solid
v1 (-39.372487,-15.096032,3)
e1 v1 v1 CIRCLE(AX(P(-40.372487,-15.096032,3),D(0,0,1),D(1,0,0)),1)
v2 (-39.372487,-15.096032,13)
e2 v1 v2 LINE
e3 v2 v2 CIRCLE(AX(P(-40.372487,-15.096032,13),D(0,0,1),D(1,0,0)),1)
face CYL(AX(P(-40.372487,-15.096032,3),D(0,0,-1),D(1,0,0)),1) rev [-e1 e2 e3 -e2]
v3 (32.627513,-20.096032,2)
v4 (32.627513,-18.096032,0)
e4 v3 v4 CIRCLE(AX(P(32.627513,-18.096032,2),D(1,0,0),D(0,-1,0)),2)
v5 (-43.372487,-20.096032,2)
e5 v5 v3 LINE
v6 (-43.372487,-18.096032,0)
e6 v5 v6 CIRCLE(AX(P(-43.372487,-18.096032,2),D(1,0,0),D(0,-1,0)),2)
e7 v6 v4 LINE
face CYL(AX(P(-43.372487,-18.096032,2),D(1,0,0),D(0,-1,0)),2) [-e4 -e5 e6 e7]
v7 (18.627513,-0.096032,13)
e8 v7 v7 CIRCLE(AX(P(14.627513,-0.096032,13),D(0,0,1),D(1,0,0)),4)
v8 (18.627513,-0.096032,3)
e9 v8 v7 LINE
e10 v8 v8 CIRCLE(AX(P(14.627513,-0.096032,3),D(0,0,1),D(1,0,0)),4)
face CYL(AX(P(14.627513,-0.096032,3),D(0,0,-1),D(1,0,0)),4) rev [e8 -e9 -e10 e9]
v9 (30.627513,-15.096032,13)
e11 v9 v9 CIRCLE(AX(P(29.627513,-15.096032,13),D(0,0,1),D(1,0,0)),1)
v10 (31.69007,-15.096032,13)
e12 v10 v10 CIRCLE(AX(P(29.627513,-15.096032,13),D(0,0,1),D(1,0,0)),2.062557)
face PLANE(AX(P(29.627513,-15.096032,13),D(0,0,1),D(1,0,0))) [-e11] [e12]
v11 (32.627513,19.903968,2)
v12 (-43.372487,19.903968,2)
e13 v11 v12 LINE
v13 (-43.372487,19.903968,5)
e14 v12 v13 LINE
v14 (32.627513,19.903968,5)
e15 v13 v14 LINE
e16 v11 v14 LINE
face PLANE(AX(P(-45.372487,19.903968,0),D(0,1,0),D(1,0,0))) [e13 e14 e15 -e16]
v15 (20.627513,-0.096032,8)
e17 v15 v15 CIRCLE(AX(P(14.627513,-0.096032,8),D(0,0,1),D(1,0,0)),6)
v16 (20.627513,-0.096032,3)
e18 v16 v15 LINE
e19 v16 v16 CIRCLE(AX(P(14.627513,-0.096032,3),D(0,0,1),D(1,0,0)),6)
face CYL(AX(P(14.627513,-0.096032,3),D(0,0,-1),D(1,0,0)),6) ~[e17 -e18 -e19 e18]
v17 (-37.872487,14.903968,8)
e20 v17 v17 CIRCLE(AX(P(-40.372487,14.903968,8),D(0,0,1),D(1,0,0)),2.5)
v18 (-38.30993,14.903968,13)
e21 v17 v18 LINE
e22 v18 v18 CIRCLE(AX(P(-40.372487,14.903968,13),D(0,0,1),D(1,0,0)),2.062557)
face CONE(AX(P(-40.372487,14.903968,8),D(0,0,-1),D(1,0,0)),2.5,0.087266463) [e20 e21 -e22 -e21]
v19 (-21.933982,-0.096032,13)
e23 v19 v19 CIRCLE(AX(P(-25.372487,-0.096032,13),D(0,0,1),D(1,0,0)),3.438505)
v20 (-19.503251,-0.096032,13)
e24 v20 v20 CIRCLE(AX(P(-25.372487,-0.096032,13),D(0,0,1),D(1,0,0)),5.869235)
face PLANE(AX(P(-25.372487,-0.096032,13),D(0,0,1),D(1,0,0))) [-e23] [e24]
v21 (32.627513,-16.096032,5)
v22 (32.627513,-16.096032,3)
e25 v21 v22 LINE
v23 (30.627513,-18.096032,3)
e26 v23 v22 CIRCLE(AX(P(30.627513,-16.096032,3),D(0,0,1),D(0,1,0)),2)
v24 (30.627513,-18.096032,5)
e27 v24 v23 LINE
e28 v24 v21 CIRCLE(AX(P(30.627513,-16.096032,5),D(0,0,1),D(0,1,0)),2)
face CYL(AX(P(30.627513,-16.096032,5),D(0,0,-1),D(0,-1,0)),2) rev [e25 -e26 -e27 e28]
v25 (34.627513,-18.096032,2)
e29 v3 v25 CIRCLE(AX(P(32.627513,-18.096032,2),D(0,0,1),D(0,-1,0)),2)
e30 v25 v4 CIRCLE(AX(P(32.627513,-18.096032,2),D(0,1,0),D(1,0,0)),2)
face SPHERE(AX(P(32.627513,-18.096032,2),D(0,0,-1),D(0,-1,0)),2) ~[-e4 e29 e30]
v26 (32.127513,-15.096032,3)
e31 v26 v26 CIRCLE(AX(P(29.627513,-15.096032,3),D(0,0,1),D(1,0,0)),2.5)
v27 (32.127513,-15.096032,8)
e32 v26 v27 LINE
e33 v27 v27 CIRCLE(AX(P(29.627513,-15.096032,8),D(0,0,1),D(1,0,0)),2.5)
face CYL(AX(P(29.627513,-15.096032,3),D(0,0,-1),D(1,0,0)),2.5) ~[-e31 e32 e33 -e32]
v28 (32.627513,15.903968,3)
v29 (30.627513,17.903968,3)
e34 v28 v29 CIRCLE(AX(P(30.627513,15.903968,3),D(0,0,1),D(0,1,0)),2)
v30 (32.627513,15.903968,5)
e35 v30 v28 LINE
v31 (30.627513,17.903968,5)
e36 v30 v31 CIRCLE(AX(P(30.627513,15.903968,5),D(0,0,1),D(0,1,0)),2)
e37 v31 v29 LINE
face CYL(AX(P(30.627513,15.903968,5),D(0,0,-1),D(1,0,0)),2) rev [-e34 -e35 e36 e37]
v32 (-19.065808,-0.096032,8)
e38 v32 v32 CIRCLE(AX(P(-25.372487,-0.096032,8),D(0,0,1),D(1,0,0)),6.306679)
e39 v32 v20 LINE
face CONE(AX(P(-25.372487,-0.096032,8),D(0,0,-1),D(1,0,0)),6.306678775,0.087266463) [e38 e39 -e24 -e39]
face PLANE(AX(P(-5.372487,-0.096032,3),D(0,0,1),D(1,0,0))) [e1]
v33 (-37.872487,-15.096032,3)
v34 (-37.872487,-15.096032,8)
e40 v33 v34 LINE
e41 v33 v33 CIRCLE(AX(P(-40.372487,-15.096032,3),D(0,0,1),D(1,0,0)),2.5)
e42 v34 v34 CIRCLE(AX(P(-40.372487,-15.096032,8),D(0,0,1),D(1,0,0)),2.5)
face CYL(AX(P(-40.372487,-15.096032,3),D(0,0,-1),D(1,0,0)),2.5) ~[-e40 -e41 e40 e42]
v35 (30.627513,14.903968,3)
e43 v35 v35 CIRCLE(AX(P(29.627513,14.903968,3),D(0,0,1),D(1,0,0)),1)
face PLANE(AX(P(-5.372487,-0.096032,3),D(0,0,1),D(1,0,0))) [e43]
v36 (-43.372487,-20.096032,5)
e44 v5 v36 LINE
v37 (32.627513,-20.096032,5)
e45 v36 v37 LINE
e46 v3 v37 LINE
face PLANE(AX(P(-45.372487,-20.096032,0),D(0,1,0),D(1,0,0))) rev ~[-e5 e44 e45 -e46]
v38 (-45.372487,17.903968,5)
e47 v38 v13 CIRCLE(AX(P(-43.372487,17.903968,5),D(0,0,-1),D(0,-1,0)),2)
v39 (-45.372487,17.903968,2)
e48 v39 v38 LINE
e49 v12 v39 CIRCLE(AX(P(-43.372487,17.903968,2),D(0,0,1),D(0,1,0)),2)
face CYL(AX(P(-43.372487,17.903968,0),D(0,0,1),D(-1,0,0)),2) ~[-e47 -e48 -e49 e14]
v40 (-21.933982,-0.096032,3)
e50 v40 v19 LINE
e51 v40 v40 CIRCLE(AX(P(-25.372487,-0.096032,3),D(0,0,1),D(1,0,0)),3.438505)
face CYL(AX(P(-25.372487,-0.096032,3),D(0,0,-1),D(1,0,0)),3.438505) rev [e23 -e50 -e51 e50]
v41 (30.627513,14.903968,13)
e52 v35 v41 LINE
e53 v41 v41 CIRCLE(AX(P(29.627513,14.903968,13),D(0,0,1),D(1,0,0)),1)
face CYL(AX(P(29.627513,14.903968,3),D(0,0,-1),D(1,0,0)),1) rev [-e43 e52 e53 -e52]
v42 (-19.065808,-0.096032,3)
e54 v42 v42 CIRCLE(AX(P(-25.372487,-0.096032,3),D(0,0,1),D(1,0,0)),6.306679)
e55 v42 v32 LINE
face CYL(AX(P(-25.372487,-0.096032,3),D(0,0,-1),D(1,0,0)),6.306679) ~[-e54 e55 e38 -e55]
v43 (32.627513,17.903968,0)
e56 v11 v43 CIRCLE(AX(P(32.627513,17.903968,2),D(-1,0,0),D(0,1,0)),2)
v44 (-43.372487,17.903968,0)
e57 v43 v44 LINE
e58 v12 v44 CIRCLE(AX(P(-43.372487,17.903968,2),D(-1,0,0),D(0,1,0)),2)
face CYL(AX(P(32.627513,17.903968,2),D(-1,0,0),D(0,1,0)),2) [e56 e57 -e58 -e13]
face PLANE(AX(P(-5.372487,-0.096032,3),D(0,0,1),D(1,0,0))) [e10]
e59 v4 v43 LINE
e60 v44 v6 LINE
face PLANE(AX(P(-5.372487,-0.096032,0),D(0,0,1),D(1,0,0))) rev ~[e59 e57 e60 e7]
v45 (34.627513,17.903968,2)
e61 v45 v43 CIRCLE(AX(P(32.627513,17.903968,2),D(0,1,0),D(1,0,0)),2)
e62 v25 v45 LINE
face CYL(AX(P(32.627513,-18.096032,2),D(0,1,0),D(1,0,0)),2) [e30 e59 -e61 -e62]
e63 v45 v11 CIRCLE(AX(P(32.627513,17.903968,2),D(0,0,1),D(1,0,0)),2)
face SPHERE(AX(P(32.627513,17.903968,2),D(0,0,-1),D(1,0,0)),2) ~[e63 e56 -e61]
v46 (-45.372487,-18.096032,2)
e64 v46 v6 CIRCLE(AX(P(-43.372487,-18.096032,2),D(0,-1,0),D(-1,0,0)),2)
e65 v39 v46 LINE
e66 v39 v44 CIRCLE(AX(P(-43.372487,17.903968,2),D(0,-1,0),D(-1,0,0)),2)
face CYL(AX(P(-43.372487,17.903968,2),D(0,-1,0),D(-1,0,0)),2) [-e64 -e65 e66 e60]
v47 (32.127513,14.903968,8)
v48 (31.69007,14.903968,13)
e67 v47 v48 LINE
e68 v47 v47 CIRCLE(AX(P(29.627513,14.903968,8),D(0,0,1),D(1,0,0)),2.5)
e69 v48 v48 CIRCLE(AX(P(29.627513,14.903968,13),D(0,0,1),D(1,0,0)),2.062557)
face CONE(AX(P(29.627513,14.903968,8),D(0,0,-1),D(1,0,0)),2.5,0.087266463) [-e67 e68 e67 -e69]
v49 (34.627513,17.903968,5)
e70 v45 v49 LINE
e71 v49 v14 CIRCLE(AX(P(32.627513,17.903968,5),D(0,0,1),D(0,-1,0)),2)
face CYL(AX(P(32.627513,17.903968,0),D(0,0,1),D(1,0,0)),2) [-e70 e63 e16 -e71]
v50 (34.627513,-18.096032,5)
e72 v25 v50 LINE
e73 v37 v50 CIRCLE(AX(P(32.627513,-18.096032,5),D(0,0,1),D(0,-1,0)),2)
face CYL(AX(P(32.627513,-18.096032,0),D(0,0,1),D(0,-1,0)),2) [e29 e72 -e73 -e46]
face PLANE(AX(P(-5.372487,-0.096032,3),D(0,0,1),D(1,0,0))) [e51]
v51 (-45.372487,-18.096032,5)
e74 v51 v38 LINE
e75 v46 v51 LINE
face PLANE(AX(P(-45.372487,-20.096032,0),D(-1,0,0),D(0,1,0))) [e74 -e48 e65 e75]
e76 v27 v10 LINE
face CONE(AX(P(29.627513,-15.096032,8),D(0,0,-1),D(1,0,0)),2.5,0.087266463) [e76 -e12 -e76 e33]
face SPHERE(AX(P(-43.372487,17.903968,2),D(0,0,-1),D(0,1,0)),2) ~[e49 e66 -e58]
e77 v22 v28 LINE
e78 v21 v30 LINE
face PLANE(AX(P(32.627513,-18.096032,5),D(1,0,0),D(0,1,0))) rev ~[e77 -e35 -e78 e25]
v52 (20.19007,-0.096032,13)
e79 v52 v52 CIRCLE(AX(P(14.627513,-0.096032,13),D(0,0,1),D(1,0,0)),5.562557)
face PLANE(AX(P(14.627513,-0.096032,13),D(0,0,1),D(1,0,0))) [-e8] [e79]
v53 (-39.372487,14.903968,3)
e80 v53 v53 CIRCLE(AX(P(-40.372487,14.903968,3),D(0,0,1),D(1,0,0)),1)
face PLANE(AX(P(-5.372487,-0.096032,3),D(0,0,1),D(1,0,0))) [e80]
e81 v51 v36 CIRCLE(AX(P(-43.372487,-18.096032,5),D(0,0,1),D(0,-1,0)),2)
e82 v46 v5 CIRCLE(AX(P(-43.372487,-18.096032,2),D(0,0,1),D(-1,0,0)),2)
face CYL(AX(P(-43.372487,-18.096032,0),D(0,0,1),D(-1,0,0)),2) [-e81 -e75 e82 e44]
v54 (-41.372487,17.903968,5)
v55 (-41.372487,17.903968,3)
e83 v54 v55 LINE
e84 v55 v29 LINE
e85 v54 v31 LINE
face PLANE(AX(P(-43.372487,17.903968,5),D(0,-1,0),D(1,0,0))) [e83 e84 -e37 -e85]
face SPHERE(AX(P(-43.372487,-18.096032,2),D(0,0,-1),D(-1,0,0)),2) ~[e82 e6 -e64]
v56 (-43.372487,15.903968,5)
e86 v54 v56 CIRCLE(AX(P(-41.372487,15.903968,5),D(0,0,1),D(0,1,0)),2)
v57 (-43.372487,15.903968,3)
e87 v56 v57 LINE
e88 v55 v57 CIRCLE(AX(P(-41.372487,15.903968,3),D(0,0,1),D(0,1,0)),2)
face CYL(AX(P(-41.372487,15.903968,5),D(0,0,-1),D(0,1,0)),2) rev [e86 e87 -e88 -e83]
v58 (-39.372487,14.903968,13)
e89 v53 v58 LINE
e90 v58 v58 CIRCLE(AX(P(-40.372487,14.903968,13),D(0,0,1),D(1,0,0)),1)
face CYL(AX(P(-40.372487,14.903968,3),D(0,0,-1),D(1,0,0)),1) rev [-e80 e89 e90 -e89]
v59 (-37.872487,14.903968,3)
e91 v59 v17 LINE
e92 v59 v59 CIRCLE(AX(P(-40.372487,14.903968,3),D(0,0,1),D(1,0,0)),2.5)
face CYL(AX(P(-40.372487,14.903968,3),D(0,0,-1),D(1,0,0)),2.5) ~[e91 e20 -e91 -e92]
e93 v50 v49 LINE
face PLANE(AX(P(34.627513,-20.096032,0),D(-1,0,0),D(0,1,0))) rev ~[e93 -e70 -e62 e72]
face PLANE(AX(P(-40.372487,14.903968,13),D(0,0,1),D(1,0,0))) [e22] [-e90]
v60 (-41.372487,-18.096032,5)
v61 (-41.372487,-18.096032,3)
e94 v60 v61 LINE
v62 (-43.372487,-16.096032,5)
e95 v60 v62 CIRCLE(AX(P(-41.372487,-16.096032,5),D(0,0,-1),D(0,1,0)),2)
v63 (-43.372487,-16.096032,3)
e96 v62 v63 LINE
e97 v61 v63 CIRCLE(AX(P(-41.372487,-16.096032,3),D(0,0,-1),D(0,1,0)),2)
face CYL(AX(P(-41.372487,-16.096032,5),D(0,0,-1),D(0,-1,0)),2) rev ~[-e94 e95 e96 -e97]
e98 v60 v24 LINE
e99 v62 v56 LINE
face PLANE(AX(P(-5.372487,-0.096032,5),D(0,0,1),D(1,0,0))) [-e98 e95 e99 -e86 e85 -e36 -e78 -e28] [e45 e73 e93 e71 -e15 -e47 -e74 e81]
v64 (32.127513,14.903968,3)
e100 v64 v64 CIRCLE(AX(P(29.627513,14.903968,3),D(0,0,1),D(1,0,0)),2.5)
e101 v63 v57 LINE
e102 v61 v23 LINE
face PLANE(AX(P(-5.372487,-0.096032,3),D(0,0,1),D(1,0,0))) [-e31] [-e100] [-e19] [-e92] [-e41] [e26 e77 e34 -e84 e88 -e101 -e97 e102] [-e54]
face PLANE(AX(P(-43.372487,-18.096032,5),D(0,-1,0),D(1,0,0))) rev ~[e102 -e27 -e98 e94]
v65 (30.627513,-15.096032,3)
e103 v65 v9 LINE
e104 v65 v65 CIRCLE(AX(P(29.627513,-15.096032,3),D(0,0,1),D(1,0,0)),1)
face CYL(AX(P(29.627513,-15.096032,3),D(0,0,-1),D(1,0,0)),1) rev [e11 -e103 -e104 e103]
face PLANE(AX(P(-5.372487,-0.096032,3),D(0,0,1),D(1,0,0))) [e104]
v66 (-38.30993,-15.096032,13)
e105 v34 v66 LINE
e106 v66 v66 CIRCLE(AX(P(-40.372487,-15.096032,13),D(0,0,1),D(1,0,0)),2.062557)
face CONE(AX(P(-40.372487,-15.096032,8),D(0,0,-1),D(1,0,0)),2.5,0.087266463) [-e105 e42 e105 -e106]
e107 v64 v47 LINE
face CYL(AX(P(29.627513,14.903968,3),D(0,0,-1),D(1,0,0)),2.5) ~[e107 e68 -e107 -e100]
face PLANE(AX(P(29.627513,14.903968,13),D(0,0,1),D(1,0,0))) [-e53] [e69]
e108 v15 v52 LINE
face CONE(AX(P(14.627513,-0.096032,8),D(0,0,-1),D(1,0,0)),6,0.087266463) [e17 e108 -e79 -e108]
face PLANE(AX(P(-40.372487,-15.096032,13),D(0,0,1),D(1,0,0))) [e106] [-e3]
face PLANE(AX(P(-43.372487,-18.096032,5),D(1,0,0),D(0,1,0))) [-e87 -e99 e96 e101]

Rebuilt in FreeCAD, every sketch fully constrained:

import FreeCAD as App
import Part
import Sketcher


def edges_at(feature, points):
    """Names of the edges that pass closest to the given points."""
    edges = feature.Shape.Edges
    near = lambda p: min(range(len(edges)), key=lambda i: edges[i].distToShape(Part.Vertex(*p))[0])
    return sorted({f"Edge{near(p) + 1}" for p in points})

doc = App.newDocument("Part")
body = doc.addObject("PartDesign::Body", "Body")

# Sketch on XY plane
sketch1 = body.newObject("Sketcher::SketchObject", "Sketch")
sketch1.AttachmentSupport = (doc.getObject("XY_Plane"), [""])
sketch1.MapMode = "FlatFace"
sketch1.addGeometry(Part.LineSegment(App.Vector(-45, 20, 0), App.Vector(-45, -20, 0)), False)
sketch1.addGeometry(Part.LineSegment(App.Vector(-45, -20, 0), App.Vector(35, -20, 0)), False)
sketch1.addGeometry(Part.LineSegment(App.Vector(35, -20, 0), App.Vector(35, 20, 0)), False)
sketch1.addGeometry(Part.LineSegment(App.Vector(35, 20, 0), App.Vector(-45, 20, 0)), False)
sketch1.addConstraint(Sketcher.Constraint("Coincident", 0, 2, 1, 1))
sketch1.addConstraint(Sketcher.Constraint("Coincident", 1, 2, 2, 1))
sketch1.addConstraint(Sketcher.Constraint("Coincident", 2, 2, 3, 1))
sketch1.addConstraint(Sketcher.Constraint("Coincident", 3, 2, 0, 1))
sketch1.addConstraint(Sketcher.Constraint("Vertical", 0))
sketch1.addConstraint(Sketcher.Constraint("Horizontal", 1))
sketch1.addConstraint(Sketcher.Constraint("Vertical", 2))
sketch1.addConstraint(Sketcher.Constraint("Horizontal", 3))
sketch1.addConstraint(Sketcher.Constraint("DistanceX", 1, 1, 1, 2, 80.0))
sketch1.addConstraint(Sketcher.Constraint("DistanceY", 0, 2, 0, 1, 40.0))
sketch1.addConstraint(Sketcher.Constraint("DistanceY", 0, 2, -1, 1, 20.096032))
sketch1.addConstraint(Sketcher.Constraint("DistanceX", 0, 2, -1, 1, 45.372487))
pad1 = body.newObject("PartDesign::Pad", "Pad")
pad1.Profile = sketch1
pad1.Length = 5
doc.recompute()

fillet = body.newObject("PartDesign::Fillet", "Fillet")
fillet.Base = (pad1, edges_at(pad1, [
    (-45.372, 19.904, 2.5),
    (34.628, 19.904, 2.5),
    (34.628, -20.096, 2.5),
    (-45.372, -20.096, 2.5),
]))
fillet.Radius = 2

# Sketch on XY plane
sketch2 = body.newObject("Sketcher::SketchObject", "Sketch001")
sketch2.AttachmentSupport = (doc.getObject("XY_Plane"), [""])
sketch2.MapMode = "FlatFace"
sketch2.AttachmentOffset = App.Placement(App.Vector(0, 0, 5), App.Rotation())
sketch2.addGeometry(Part.LineSegment(App.Vector(-43, 18, 0), App.Vector(-43, -18, 0)), False)
sketch2.addGeometry(Part.LineSegment(App.Vector(-43, -18, 0), App.Vector(33, -18, 0)), False)
sketch2.addGeometry(Part.LineSegment(App.Vector(33, -18, 0), App.Vector(33, 18, 0)), False)
sketch2.addGeometry(Part.LineSegment(App.Vector(33, 18, 0), App.Vector(-43, 18, 0)), False)
sketch2.addConstraint(Sketcher.Constraint("Coincident", 0, 2, 1, 1))
sketch2.addConstraint(Sketcher.Constraint("Coincident", 1, 2, 2, 1))
sketch2.addConstraint(Sketcher.Constraint("Coincident", 2, 2, 3, 1))
sketch2.addConstraint(Sketcher.Constraint("Coincident", 3, 2, 0, 1))
sketch2.addConstraint(Sketcher.Constraint("Vertical", 0))
sketch2.addConstraint(Sketcher.Constraint("Horizontal", 1))
sketch2.addConstraint(Sketcher.Constraint("Vertical", 2))
sketch2.addConstraint(Sketcher.Constraint("Horizontal", 3))
sketch2.addConstraint(Sketcher.Constraint("DistanceX", 1, 1, 1, 2, 76.0))
sketch2.addConstraint(Sketcher.Constraint("DistanceY", 0, 2, 0, 1, 36.0))
sketch2.addConstraint(Sketcher.Constraint("DistanceY", 0, 2, -1, 1, 18.096032))
sketch2.addConstraint(Sketcher.Constraint("DistanceX", 0, 2, -1, 1, 43.372487))
pocket1 = body.newObject("PartDesign::Pocket", "Pocket")
pocket1.Profile = sketch2
pocket1.Length = 2
doc.recompute()

fillet2 = body.newObject("PartDesign::Fillet", "Fillet001")
fillet2.Base = (pocket1, edges_at(pocket1, [
    (-43.372, -18.096, 4),
    (-43.372, 17.904, 4),
    (32.628, 17.904, 4),
    (32.628, -18.096, 4),
]))
fillet2.Radius = 2
doc.recompute()

fillet3 = body.newObject("PartDesign::Fillet", "Fillet002")
fillet3.Base = (fillet2, edges_at(fillet2, [
    (-5.372, -20.096, 0),
    (-45.372, -0.096, 0),
    (-5.372, 19.904, 0),
    (34.628, -0.096, 0),
    (-44.787, 19.318, 0),
    (34.042, 19.318, 0),
    (34.042, -19.51, 0),
    (-44.787, -19.51, 0),
]))
fillet3.Radius = 2

# Sketch on XY plane
sketch3 = body.newObject("Sketcher::SketchObject", "Sketch002")
sketch3.AttachmentSupport = (doc.getObject("XY_Plane"), [""])
sketch3.MapMode = "FlatFace"
sketch3.AttachmentOffset = App.Placement(App.Vector(0, 0, 3), App.Rotation())
sketch3.addGeometry(Part.Circle(App.Vector(-40.4, 14.9, 0), App.Vector(0, 0, 1), 2.5), False)
sketch3.addGeometry(Part.Circle(App.Vector(-40.4, 14.9, 0), App.Vector(0, 0, 1), 1), False)
sketch3.addGeometry(Part.Circle(App.Vector(29.6, 14.9, 0), App.Vector(0, 0, 1), 2.5), False)
sketch3.addGeometry(Part.Circle(App.Vector(29.6, 14.9, 0), App.Vector(0, 0, 1), 1), False)
sketch3.addGeometry(Part.Circle(App.Vector(29.6, -15.1, 0), App.Vector(0, 0, 1), 2.5), False)
sketch3.addGeometry(Part.Circle(App.Vector(29.6, -15.1, 0), App.Vector(0, 0, 1), 1), False)
sketch3.addGeometry(Part.Circle(App.Vector(-40.4, -15.1, 0), App.Vector(0, 0, 1), 2.5), False)
sketch3.addGeometry(Part.Circle(App.Vector(-40.4, -15.1, 0), App.Vector(0, 0, 1), 1), False)
sketch3.addGeometry(Part.Circle(App.Vector(14.6, -0.1, 0), App.Vector(0, 0, 1), 6), False)
sketch3.addGeometry(Part.Circle(App.Vector(14.6, -0.1, 0), App.Vector(0, 0, 1), 4), False)
sketch3.addConstraint(Sketcher.Constraint("Coincident", 1, 3, 0, 3))
sketch3.addConstraint(Sketcher.Constraint("Coincident", 3, 3, 2, 3))
sketch3.addConstraint(Sketcher.Constraint("Coincident", 5, 3, 4, 3))
sketch3.addConstraint(Sketcher.Constraint("Coincident", 7, 3, 6, 3))
sketch3.addConstraint(Sketcher.Constraint("Coincident", 9, 3, 8, 3))
sketch3.addConstraint(Sketcher.Constraint("Equal", 0, 2))
sketch3.addConstraint(Sketcher.Constraint("Equal", 1, 3))
sketch3.addConstraint(Sketcher.Constraint("Equal", 2, 4))
sketch3.addConstraint(Sketcher.Constraint("Equal", 3, 5))
sketch3.addConstraint(Sketcher.Constraint("Equal", 4, 6))
sketch3.addConstraint(Sketcher.Constraint("Equal", 5, 7))
sketch3.addConstraint(Sketcher.Constraint("Horizontal", 1, 3, 2, 3))
sketch3.addConstraint(Sketcher.Constraint("Horizontal", 5, 3, 6, 3))
sketch3.addConstraint(Sketcher.Constraint("Vertical", 3, 3, 4, 3))
sketch3.addConstraint(Sketcher.Constraint("Vertical", 1, 3, 6, 3))
sketch3.addConstraint(Sketcher.Constraint("Diameter", 0, 5.0))
sketch3.addConstraint(Sketcher.Constraint("Diameter", 1, 2.0))
sketch3.addConstraint(Sketcher.Constraint("Diameter", 8, 12.0))
sketch3.addConstraint(Sketcher.Constraint("Diameter", 9, 8.0))
sketch3.addConstraint(Sketcher.Constraint("DistanceX", 0, 3, 2, 3, 70.0))
sketch3.addConstraint(Sketcher.Constraint("DistanceY", 4, 3, 2, 3, 30.0))
sketch3.addConstraint(Sketcher.Constraint("DistanceX", 8, 3, 2, 3, 15.0))
sketch3.addConstraint(Sketcher.Constraint("DistanceY", 8, 3, 2, 3, 15.0))
sketch3.addConstraint(Sketcher.Constraint("DistanceY", -1, 1, 0, 3, 14.903968))
sketch3.addConstraint(Sketcher.Constraint("DistanceX", 0, 3, -1, 1, 40.372487))
pad2 = body.newObject("PartDesign::Pad", "Pad001")
pad2.Profile = sketch3
pad2.Length = 10
doc.recompute()

chamfer = body.newObject("PartDesign::Chamfer", "Chamfer")
chamfer.Base = (pad2, edges_at(pad2, [(8.628, -0.096, 13)]))
chamfer.ChamferType = "Two distances"
chamfer.Size = 5
chamfer.Size2 = 0.437443

# Sketch on XY plane
sketch4 = body.newObject("Sketcher::SketchObject", "Sketch003")
sketch4.AttachmentSupport = (doc.getObject("XY_Plane"), [""])
sketch4.MapMode = "FlatFace"
sketch4.AttachmentOffset = App.Placement(App.Vector(0, 0, 3), App.Rotation())
sketch4.addGeometry(Part.Circle(App.Vector(-25.4, -0.1, 0), App.Vector(0, 0, 1), 6.3), False)
sketch4.addGeometry(Part.Circle(App.Vector(-25.4, -0.1, 0), App.Vector(0, 0, 1), 3.4), False)
sketch4.addConstraint(Sketcher.Constraint("Coincident", 1, 3, 0, 3))
sketch4.addConstraint(Sketcher.Constraint("Diameter", 1, 6.87701))
sketch4.addConstraint(Sketcher.Constraint("Diameter", 0, 12.613358))
sketch4.addConstraint(Sketcher.Constraint("DistanceY", 0, 3, -1, 1, 0.096032))
sketch4.addConstraint(Sketcher.Constraint("DistanceX", 0, 3, -1, 1, 25.372487))
pad3 = body.newObject("PartDesign::Pad", "Pad002")
pad3.Profile = sketch4
pad3.Length = 10
doc.recompute()

chamfer2 = body.newObject("PartDesign::Chamfer", "Chamfer001")
chamfer2.Base = (pad3, edges_at(pad3, [(-31.679, -0.096, 13)]))
chamfer2.ChamferType = "Two distances"
chamfer2.Size = 5
chamfer2.Size2 = 0.437443
doc.recompute()

chamfer3 = body.newObject("PartDesign::Chamfer", "Chamfer002")
chamfer3.Base = (chamfer2, edges_at(chamfer2, [(-42.872, 14.904, 13)]))
chamfer3.ChamferType = "Two distances"
chamfer3.Size = 5
chamfer3.Size2 = 0.437443
doc.recompute()

chamfer4 = body.newObject("PartDesign::Chamfer", "Chamfer003")
chamfer4.Base = (chamfer3, edges_at(chamfer3, [(27.128, 14.904, 13)]))
chamfer4.ChamferType = "Two distances"
chamfer4.Size = 5
chamfer4.Size2 = 0.437443
doc.recompute()

chamfer5 = body.newObject("PartDesign::Chamfer", "Chamfer004")
chamfer5.Base = (chamfer4, edges_at(chamfer4, [(27.128, -15.096, 13)]))
chamfer5.ChamferType = "Two distances"
chamfer5.Size = 5
chamfer5.Size2 = 0.437443
doc.recompute()

chamfer6 = body.newObject("PartDesign::Chamfer", "Chamfer005")
chamfer6.Base = (chamfer5, edges_at(chamfer5, [(-42.872, -15.096, 13)]))
chamfer6.ChamferType = "Two distances"
chamfer6.Size = 5
chamfer6.Size2 = 0.437443

doc.recompute()
